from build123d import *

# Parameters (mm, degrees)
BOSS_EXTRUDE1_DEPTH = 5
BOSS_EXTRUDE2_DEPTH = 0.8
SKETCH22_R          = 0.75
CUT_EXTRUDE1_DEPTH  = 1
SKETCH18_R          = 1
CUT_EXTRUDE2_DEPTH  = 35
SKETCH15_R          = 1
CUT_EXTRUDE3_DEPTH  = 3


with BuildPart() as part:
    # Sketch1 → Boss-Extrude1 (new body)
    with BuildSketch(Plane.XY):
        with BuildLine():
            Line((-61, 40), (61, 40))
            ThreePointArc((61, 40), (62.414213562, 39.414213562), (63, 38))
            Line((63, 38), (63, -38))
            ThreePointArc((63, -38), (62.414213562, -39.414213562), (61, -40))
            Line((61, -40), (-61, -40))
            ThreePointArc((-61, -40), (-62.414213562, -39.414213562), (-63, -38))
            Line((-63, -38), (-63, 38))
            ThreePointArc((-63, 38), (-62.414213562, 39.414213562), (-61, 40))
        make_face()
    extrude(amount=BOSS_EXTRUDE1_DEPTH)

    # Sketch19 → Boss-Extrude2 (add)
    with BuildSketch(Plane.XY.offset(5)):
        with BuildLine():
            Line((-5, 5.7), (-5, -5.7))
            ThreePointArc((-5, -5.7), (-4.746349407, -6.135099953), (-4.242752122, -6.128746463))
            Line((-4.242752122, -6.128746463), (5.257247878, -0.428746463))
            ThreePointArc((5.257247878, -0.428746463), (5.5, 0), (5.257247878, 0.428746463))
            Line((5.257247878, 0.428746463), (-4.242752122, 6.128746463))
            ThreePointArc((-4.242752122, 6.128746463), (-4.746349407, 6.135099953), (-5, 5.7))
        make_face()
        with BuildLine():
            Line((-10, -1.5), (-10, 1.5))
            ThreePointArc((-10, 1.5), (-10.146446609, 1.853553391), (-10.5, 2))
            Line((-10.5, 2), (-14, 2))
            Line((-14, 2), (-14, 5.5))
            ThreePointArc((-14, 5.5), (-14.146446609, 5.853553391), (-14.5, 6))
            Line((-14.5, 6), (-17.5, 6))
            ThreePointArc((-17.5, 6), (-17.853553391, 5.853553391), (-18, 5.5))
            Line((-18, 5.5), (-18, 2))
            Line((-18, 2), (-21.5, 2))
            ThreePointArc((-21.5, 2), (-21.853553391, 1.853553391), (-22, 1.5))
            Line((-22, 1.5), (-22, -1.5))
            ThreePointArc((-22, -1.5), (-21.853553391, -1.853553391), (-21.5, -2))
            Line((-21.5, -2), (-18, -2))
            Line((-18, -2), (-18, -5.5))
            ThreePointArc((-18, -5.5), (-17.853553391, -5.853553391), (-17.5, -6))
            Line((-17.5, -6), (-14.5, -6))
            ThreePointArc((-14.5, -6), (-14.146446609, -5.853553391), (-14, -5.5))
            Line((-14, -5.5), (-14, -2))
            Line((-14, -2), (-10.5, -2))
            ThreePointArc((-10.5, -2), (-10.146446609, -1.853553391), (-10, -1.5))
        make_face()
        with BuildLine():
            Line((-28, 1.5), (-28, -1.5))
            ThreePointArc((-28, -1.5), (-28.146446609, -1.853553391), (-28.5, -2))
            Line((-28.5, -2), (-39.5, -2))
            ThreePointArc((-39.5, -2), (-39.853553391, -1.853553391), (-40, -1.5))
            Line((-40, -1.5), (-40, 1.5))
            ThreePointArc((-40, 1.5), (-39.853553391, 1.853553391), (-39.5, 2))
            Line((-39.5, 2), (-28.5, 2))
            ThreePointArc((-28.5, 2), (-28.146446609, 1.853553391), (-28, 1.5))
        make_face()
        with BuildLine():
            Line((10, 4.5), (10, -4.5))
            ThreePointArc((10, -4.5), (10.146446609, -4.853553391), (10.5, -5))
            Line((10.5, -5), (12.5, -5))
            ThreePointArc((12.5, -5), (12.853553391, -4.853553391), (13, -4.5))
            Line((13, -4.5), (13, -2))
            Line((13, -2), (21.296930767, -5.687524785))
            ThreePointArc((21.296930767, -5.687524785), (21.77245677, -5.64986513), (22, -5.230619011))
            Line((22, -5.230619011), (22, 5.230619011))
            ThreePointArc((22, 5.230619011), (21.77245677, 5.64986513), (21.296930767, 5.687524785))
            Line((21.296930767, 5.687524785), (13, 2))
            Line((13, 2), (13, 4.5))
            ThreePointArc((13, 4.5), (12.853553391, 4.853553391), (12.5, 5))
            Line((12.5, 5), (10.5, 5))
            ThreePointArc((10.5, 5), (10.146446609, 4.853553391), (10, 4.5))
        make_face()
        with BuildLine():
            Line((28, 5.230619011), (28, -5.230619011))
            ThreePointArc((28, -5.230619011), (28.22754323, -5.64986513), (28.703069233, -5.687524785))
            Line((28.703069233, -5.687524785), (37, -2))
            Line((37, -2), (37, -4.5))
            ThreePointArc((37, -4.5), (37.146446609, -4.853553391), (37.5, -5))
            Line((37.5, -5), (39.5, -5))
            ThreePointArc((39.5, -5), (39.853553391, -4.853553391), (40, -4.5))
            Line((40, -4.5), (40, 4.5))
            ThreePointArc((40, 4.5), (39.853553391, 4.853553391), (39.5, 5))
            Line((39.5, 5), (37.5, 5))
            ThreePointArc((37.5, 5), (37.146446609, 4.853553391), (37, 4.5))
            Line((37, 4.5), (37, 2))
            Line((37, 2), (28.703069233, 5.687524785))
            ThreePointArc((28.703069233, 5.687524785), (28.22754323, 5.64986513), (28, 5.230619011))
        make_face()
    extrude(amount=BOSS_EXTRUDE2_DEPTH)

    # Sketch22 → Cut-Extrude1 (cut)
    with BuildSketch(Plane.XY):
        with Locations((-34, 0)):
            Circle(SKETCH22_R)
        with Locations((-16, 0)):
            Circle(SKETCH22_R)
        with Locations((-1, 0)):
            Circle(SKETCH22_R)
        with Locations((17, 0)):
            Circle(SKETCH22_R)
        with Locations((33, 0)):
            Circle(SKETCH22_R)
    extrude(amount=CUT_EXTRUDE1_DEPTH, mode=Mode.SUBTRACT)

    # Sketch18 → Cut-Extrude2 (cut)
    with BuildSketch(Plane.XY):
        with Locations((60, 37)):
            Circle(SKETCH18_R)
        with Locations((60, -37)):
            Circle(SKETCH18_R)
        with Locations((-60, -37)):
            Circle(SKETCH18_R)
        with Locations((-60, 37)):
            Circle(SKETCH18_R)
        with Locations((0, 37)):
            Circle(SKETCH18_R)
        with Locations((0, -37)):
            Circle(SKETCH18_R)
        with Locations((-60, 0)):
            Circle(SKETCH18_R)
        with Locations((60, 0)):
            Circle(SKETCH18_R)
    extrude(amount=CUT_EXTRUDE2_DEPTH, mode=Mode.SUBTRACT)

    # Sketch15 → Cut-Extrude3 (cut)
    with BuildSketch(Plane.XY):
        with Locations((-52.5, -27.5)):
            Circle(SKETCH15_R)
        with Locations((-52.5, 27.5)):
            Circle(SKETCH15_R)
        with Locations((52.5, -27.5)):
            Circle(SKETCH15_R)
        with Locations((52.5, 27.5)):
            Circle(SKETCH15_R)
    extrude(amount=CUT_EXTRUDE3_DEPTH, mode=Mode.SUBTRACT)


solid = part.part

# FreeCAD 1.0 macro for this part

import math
import FreeCAD as App
import Part
import Sketcher

doc = App.newDocument("Part")
params = doc.addObject("Spreadsheet::Sheet", "Params")
for row, (alias, value) in enumerate([
    ("sketch1_radius", "2 mm"),
    ("sketch1_width", "122 mm"),
    ("sketch1_height", "76 mm"),
    ("pad1_length", "5 mm"),
    ("sketch2_radius", "0.5 mm"),
    ("sketch2_width", "3 mm"),
    ("sketch2_width2", "11 mm"),
    ("sketch2_width3", "2 mm"),
    ("sketch2_height", "9 mm"),
    ("pad2_length", "0.8 mm"),
    ("sketch3_diameter", "1.5 mm"),
    ("pocket1_length", "1 mm"),
    ("sketch4_diameter", "2 mm"),
    ("pocket2_length", "35 mm"),
    ("sketch5_diameter", "2 mm"),
    ("pocket3_length", "3 mm"),
], start=1):
    params.set(f"A{row}", alias)
    params.set(f"B{row}", "=" + value)
    params.setAlias(f"B{row}", alias)

body = doc.addObject("PartDesign::Body", "Body")

# Sketch on XY plane
sketch1 = doc.addObject("Sketcher::SketchObject", "Sketch")
body.addObject(sketch1)
sketch1.AttachmentSupport = (doc.XY_Plane, [""])
sketch1.MapMode = "FlatFace"
sketch1.addGeometry(Part.LineSegment(App.Vector(61, 40, 0), App.Vector(-61, 40, 0)), False)
sketch1.addGeometry(Part.ArcOfCircle(Part.Circle(App.Vector(-61, 38, 0), App.Vector(0, 0, 1), 2), math.radians(90), math.radians(180)), False)
sketch1.addGeometry(Part.LineSegment(App.Vector(-63, 38, 0), App.Vector(-63, -38, 0)), False)
sketch1.addGeometry(Part.ArcOfCircle(Part.Circle(App.Vector(-61, -38, 0), App.Vector(0, 0, 1), 2), math.radians(-180), math.radians(-90)), False)
sketch1.addGeometry(Part.LineSegment(App.Vector(-61, -40, 0), App.Vector(61, -40, 0)), False)
sketch1.addGeometry(Part.ArcOfCircle(Part.Circle(App.Vector(61, -38, 0), App.Vector(0, 0, 1), 2), math.radians(-90), math.radians(0)), False)
sketch1.addGeometry(Part.LineSegment(App.Vector(63, -38, 0), App.Vector(63, 38, 0)), False)
sketch1.addGeometry(Part.ArcOfCircle(Part.Circle(App.Vector(61, 38, 0), App.Vector(0, 0, 1), 2), math.radians(0), math.radians(90)), False)
sketch1.addConstraint(Sketcher.Constraint("Tangent", 0, 2, 1, 1))
sketch1.addConstraint(Sketcher.Constraint("Tangent", 1, 2, 2, 1))
sketch1.addConstraint(Sketcher.Constraint("Tangent", 2, 2, 3, 1))
sketch1.addConstraint(Sketcher.Constraint("Tangent", 3, 2, 4, 1))
sketch1.addConstraint(Sketcher.Constraint("Tangent", 4, 2, 5, 1))
sketch1.addConstraint(Sketcher.Constraint("Tangent", 5, 2, 6, 1))
sketch1.addConstraint(Sketcher.Constraint("Tangent", 6, 2, 7, 1))
sketch1.addConstraint(Sketcher.Constraint("Tangent", 7, 2, 0, 1))
sketch1.addConstraint(Sketcher.Constraint("Horizontal", 0))
sketch1.addConstraint(Sketcher.Constraint("Vertical", 2))
sketch1.addConstraint(Sketcher.Constraint("Horizontal", 4))
sketch1.addConstraint(Sketcher.Constraint("Vertical", 6))
sketch1.addConstraint(Sketcher.Constraint("Equal", 1, 3))
sketch1.addConstraint(Sketcher.Constraint("Equal", 3, 5))
sketch1.addConstraint(Sketcher.Constraint("Equal", 5, 7))
sketch1.addConstraint(Sketcher.Constraint("Symmetric", 1, 3, 5, 3, -1, 1))
sketch1.addConstraint(Sketcher.Constraint("Radius", 1, 2.0))
sketch1.addConstraint(Sketcher.Constraint("DistanceX", 0, 2, 0, 1, 122.0))
sketch1.addConstraint(Sketcher.Constraint("DistanceY", 2, 2, 2, 1, 76.0))
sketch1.setExpression("Constraints[16]", "Params.sketch1_radius")
sketch1.setExpression("Constraints[17]", "Params.sketch1_width")
sketch1.setExpression("Constraints[18]", "Params.sketch1_height")
pad1 = doc.addObject("PartDesign::Pad", "Pad")
body.addObject(pad1)
pad1.Profile = sketch1
pad1.setExpression("Length", "Params.pad1_length")

# Sketch on XY plane
sketch2 = doc.addObject("Sketcher::SketchObject", "Sketch001")
body.addObject(sketch2)
sketch2.AttachmentSupport = (doc.XY_Plane, [""])
sketch2.MapMode = "FlatFace"
sketch2.AttachmentOffset = App.Placement(App.Vector(0, 0, 5), App.Rotation())
sketch2.addGeometry(Part.LineSegment(App.Vector(-5, 5.7, 0), App.Vector(-5, -5.7, 0)), False)
sketch2.addGeometry(Part.ArcOfCircle(Part.Circle(App.Vector(-4.5, -5.7, 0), App.Vector(0, 0, 1), 0.5), math.radians(-180), math.radians(-59)), False)
sketch2.addGeometry(Part.LineSegment(App.Vector(-4.24, -6.13, 0), App.Vector(5.26, -0.43, 0)), False)
sketch2.addGeometry(Part.ArcOfCircle(Part.Circle(App.Vector(5, 0, 0), App.Vector(0, 0, 1), 0.5), math.radians(-59), math.radians(59)), False)
sketch2.addGeometry(Part.LineSegment(App.Vector(5.26, 0.43, 0), App.Vector(-4.24, 6.13, 0)), False)
sketch2.addGeometry(Part.ArcOfCircle(Part.Circle(App.Vector(-4.5, 5.7, 0), App.Vector(0, 0, 1), 0.5), math.radians(59), math.radians(180)), False)
sketch2.addGeometry(Part.LineSegment(App.Vector(-10, -1.5, 0), App.Vector(-10, 1.5, 0)), False)
sketch2.addGeometry(Part.ArcOfCircle(Part.Circle(App.Vector(-10.5, 1.5, 0), App.Vector(0, 0, 1), 0.5), math.radians(0), math.radians(90)), False)
sketch2.addGeometry(Part.LineSegment(App.Vector(-10.5, 2, 0), App.Vector(-14, 2, 0)), False)
sketch2.addGeometry(Part.LineSegment(App.Vector(-14, 2, 0), App.Vector(-14, 5.5, 0)), False)
sketch2.addGeometry(Part.ArcOfCircle(Part.Circle(App.Vector(-14.5, 5.5, 0), App.Vector(0, 0, 1), 0.5), math.radians(0), math.radians(90)), False)
sketch2.addGeometry(Part.LineSegment(App.Vector(-14.5, 6, 0), App.Vector(-17.5, 6, 0)), False)
sketch2.addGeometry(Part.ArcOfCircle(Part.Circle(App.Vector(-17.5, 5.5, 0), App.Vector(0, 0, 1), 0.5), math.radians(90), math.radians(180)), False)
sketch2.addGeometry(Part.LineSegment(App.Vector(-18, 5.5, 0), App.Vector(-18, 2, 0)), False)
sketch2.addGeometry(Part.LineSegment(App.Vector(-18, 2, 0), App.Vector(-21.5, 2, 0)), False)
sketch2.addGeometry(Part.ArcOfCircle(Part.Circle(App.Vector(-21.5, 1.5, 0), App.Vector(0, 0, 1), 0.5), math.radians(90), math.radians(180)), False)
sketch2.addGeometry(Part.LineSegment(App.Vector(-22, 1.5, 0), App.Vector(-22, -1.5, 0)), False)
sketch2.addGeometry(Part.ArcOfCircle(Part.Circle(App.Vector(-21.5, -1.5, 0), App.Vector(0, 0, 1), 0.5), math.radians(180), math.radians(270)), False)
sketch2.addGeometry(Part.LineSegment(App.Vector(-21.5, -2, 0), App.Vector(-18, -2, 0)), False)
sketch2.addGeometry(Part.LineSegment(App.Vector(-18, -2, 0), App.Vector(-18, -5.5, 0)), False)
sketch2.addGeometry(Part.ArcOfCircle(Part.Circle(App.Vector(-17.5, -5.5, 0), App.Vector(0, 0, 1), 0.5), math.radians(180), math.radians(270)), False)
sketch2.addGeometry(Part.LineSegment(App.Vector(-17.5, -6, 0), App.Vector(-14.5, -6, 0)), False)
sketch2.addGeometry(Part.ArcOfCircle(Part.Circle(App.Vector(-14.5, -5.5, 0), App.Vector(0, 0, 1), 0.5), math.radians(-90), math.radians(0)), False)
sketch2.addGeometry(Part.LineSegment(App.Vector(-14, -5.5, 0), App.Vector(-14, -2, 0)), False)
sketch2.addGeometry(Part.LineSegment(App.Vector(-14, -2, 0), App.Vector(-10.5, -2, 0)), False)
sketch2.addGeometry(Part.ArcOfCircle(Part.Circle(App.Vector(-10.5, -1.5, 0), App.Vector(0, 0, 1), 0.5), math.radians(-90), math.radians(0)), False)
sketch2.addGeometry(Part.LineSegment(App.Vector(-28, -1.5, 0), App.Vector(-28, 1.5, 0)), False)
sketch2.addGeometry(Part.ArcOfCircle(Part.Circle(App.Vector(-28.5, 1.5, 0), App.Vector(0, 0, 1), 0.5), math.radians(0), math.radians(90)), False)
sketch2.addGeometry(Part.LineSegment(App.Vector(-28.5, 2, 0), App.Vector(-39.5, 2, 0)), False)
sketch2.addGeometry(Part.ArcOfCircle(Part.Circle(App.Vector(-39.5, 1.5, 0), App.Vector(0, 0, 1), 0.5), math.radians(90), math.radians(180)), False)
sketch2.addGeometry(Part.LineSegment(App.Vector(-40, 1.5, 0), App.Vector(-40, -1.5, 0)), False)
sketch2.addGeometry(Part.ArcOfCircle(Part.Circle(App.Vector(-39.5, -1.5, 0), App.Vector(0, 0, 1), 0.5), math.radians(180), math.radians(270)), False)
sketch2.addGeometry(Part.LineSegment(App.Vector(-39.5, -2, 0), App.Vector(-28.5, -2, 0)), False)
sketch2.addGeometry(Part.ArcOfCircle(Part.Circle(App.Vector(-28.5, -1.5, 0), App.Vector(0, 0, 1), 0.5), math.radians(-90), math.radians(0)), False)
sketch2.addGeometry(Part.LineSegment(App.Vector(10, 4.5, 0), App.Vector(10, -4.5, 0)), False)
sketch2.addGeometry(Part.ArcOfCircle(Part.Circle(App.Vector(10.5, -4.5, 0), App.Vector(0, 0, 1), 0.5), math.radians(180), math.radians(270)), False)
sketch2.addGeometry(Part.LineSegment(App.Vector(10.5, -5, 0), App.Vector(12.5, -5, 0)), False)
sketch2.addGeometry(Part.ArcOfCircle(Part.Circle(App.Vector(12.5, -4.5, 0), App.Vector(0, 0, 1), 0.5), math.radians(-90), math.radians(0)), False)
sketch2.addGeometry(Part.LineSegment(App.Vector(13, -4.5, 0), App.Vector(13, -2, 0)), False)
sketch2.addGeometry(Part.LineSegment(App.Vector(13, -2, 0), App.Vector(21.3, -5.69, 0)), False)
sketch2.addGeometry(Part.ArcOfCircle(Part.Circle(App.Vector(21.5, -5.23, 0), App.Vector(0, 0, 1), 0.5), math.radians(-114), math.radians(0)), False)
sketch2.addGeometry(Part.LineSegment(App.Vector(22, -5.23, 0), App.Vector(22, 5.23, 0)), False)
sketch2.addGeometry(Part.ArcOfCircle(Part.Circle(App.Vector(21.5, 5.23, 0), App.Vector(0, 0, 1), 0.5), math.radians(0), math.radians(114)), False)
sketch2.addGeometry(Part.LineSegment(App.Vector(21.3, 5.69, 0), App.Vector(13, 2, 0)), False)
sketch2.addGeometry(Part.LineSegment(App.Vector(13, 2, 0), App.Vector(13, 4.5, 0)), False)
sketch2.addGeometry(Part.ArcOfCircle(Part.Circle(App.Vector(12.5, 4.5, 0), App.Vector(0, 0, 1), 0.5), math.radians(0), math.radians(90)), False)
sketch2.addGeometry(Part.LineSegment(App.Vector(12.5, 5, 0), App.Vector(10.5, 5, 0)), False)
sketch2.addGeometry(Part.ArcOfCircle(Part.Circle(App.Vector(10.5, 4.5, 0), App.Vector(0, 0, 1), 0.5), math.radians(90), math.radians(180)), False)
sketch2.addGeometry(Part.LineSegment(App.Vector(28, 5.23, 0), App.Vector(28, -5.23, 0)), False)
sketch2.addGeometry(Part.ArcOfCircle(Part.Circle(App.Vector(28.5, -5.23, 0), App.Vector(0, 0, 1), 0.5), math.radians(180), math.radians(294)), False)
sketch2.addGeometry(Part.LineSegment(App.Vector(28.7, -5.69, 0), App.Vector(37, -2, 0)), False)
sketch2.addGeometry(Part.LineSegment(App.Vector(37, -2, 0), App.Vector(37, -4.5, 0)), False)
sketch2.addGeometry(Part.ArcOfCircle(Part.Circle(App.Vector(37.5, -4.5, 0), App.Vector(0, 0, 1), 0.5), math.radians(180), math.radians(270)), False)
sketch2.addGeometry(Part.LineSegment(App.Vector(37.5, -5, 0), App.Vector(39.5, -5, 0)), False)
sketch2.addGeometry(Part.ArcOfCircle(Part.Circle(App.Vector(39.5, -4.5, 0), App.Vector(0, 0, 1), 0.5), math.radians(-90), math.radians(0)), False)
sketch2.addGeometry(Part.LineSegment(App.Vector(40, -4.5, 0), App.Vector(40, 4.5, 0)), False)
sketch2.addGeometry(Part.ArcOfCircle(Part.Circle(App.Vector(39.5, 4.5, 0), App.Vector(0, 0, 1), 0.5), math.radians(0), math.radians(90)), False)
sketch2.addGeometry(Part.LineSegment(App.Vector(39.5, 5, 0), App.Vector(37.5, 5, 0)), False)
sketch2.addGeometry(Part.ArcOfCircle(Part.Circle(App.Vector(37.5, 4.5, 0), App.Vector(0, 0, 1), 0.5), math.radians(90), math.radians(180)), False)
sketch2.addGeometry(Part.LineSegment(App.Vector(37, 4.5, 0), App.Vector(37, 2, 0)), False)
sketch2.addGeometry(Part.LineSegment(App.Vector(37, 2, 0), App.Vector(28.7, 5.69, 0)), False)
sketch2.addGeometry(Part.ArcOfCircle(Part.Circle(App.Vector(28.5, 5.23, 0), App.Vector(0, 0, 1), 0.5), math.radians(66), math.radians(180)), False)
sketch2.addConstraint(Sketcher.Constraint("Tangent", 0, 2, 1, 1))
sketch2.addConstraint(Sketcher.Constraint("Tangent", 1, 2, 2, 1))
sketch2.addConstraint(Sketcher.Constraint("Tangent", 2, 2, 3, 1))
sketch2.addConstraint(Sketcher.Constraint("Tangent", 3, 2, 4, 1))
sketch2.addConstraint(Sketcher.Constraint("Tangent", 4, 2, 5, 1))
sketch2.addConstraint(Sketcher.Constraint("Tangent", 5, 2, 0, 1))
sketch2.addConstraint(Sketcher.Constraint("Tangent", 6, 2, 7, 1))
sketch2.addConstraint(Sketcher.Constraint("Tangent", 7, 2, 8, 1))
sketch2.addConstraint(Sketcher.Constraint("Coincident", 8, 2, 9, 1))
sketch2.addConstraint(Sketcher.Constraint("Tangent", 9, 2, 10, 1))
sketch2.addConstraint(Sketcher.Constraint("Tangent", 10, 2, 11, 1))
sketch2.addConstraint(Sketcher.Constraint("Tangent", 11, 2, 12, 1))
sketch2.addConstraint(Sketcher.Constraint("Tangent", 12, 2, 13, 1))
sketch2.addConstraint(Sketcher.Constraint("Coincident", 13, 2, 14, 1))
sketch2.addConstraint(Sketcher.Constraint("Tangent", 14, 2, 15, 1))
sketch2.addConstraint(Sketcher.Constraint("Tangent", 15, 2, 16, 1))
sketch2.addConstraint(Sketcher.Constraint("Tangent", 16, 2, 17, 1))
sketch2.addConstraint(Sketcher.Constraint("Tangent", 17, 2, 18, 1))
sketch2.addConstraint(Sketcher.Constraint("Coincident", 18, 2, 19, 1))
sketch2.addConstraint(Sketcher.Constraint("Tangent", 19, 2, 20, 1))
sketch2.addConstraint(Sketcher.Constraint("Tangent", 20, 2, 21, 1))
sketch2.addConstraint(Sketcher.Constraint("Tangent", 21, 2, 22, 1))
sketch2.addConstraint(Sketcher.Constraint("Tangent", 22, 2, 23, 1))
sketch2.addConstraint(Sketcher.Constraint("Coincident", 23, 2, 24, 1))
sketch2.addConstraint(Sketcher.Constraint("Tangent", 24, 2, 25, 1))
sketch2.addConstraint(Sketcher.Constraint("Tangent", 25, 2, 6, 1))
sketch2.addConstraint(Sketcher.Constraint("Tangent", 26, 2, 27, 1))
sketch2.addConstraint(Sketcher.Constraint("Tangent", 27, 2, 28, 1))
sketch2.addConstraint(Sketcher.Constraint("Tangent", 28, 2, 29, 1))
sketch2.addConstraint(Sketcher.Constraint("Tangent", 29, 2, 30, 1))
sketch2.addConstraint(Sketcher.Constraint("Tangent", 30, 2, 31, 1))
sketch2.addConstraint(Sketcher.Constraint("Tangent", 31, 2, 32, 1))
sketch2.addConstraint(Sketcher.Constraint("Tangent", 32, 2, 33, 1))
sketch2.addConstraint(Sketcher.Constraint("Tangent", 33, 2, 26, 1))
sketch2.addConstraint(Sketcher.Constraint("Tangent", 34, 2, 35, 1))
sketch2.addConstraint(Sketcher.Constraint("Tangent", 35, 2, 36, 1))
sketch2.addConstraint(Sketcher.Constraint("Tangent", 36, 2, 37, 1))
sketch2.addConstraint(Sketcher.Constraint("Tangent", 37, 2, 38, 1))
sketch2.addConstraint(Sketcher.Constraint("Coincident", 38, 2, 39, 1))
sketch2.addConstraint(Sketcher.Constraint("Tangent", 39, 2, 40, 1))
sketch2.addConstraint(Sketcher.Constraint("Tangent", 40, 2, 41, 1))
sketch2.addConstraint(Sketcher.Constraint("Tangent", 41, 2, 42, 1))
sketch2.addConstraint(Sketcher.Constraint("Tangent", 42, 2, 43, 1))
sketch2.addConstraint(Sketcher.Constraint("Coincident", 43, 2, 44, 1))
sketch2.addConstraint(Sketcher.Constraint("Tangent", 44, 2, 45, 1))
sketch2.addConstraint(Sketcher.Constraint("Tangent", 45, 2, 46, 1))
sketch2.addConstraint(Sketcher.Constraint("Tangent", 46, 2, 47, 1))
sketch2.addConstraint(Sketcher.Constraint("Tangent", 47, 2, 34, 1))
sketch2.addConstraint(Sketcher.Constraint("Tangent", 48, 2, 49, 1))
sketch2.addConstraint(Sketcher.Constraint("Tangent", 49, 2, 50, 1))
sketch2.addConstraint(Sketcher.Constraint("Coincident", 50, 2, 51, 1))
sketch2.addConstraint(Sketcher.Constraint("Tangent", 51, 2, 52, 1))
sketch2.addConstraint(Sketcher.Constraint("Tangent", 52, 2, 53, 1))
sketch2.addConstraint(Sketcher.Constraint("Tangent", 53, 2, 54, 1))
sketch2.addConstraint(Sketcher.Constraint("Tangent", 54, 2, 55, 1))
sketch2.addConstraint(Sketcher.Constraint("Tangent", 55, 2, 56, 1))
sketch2.addConstraint(Sketcher.Constraint("Tangent", 56, 2, 57, 1))
sketch2.addConstraint(Sketcher.Constraint("Tangent", 57, 2, 58, 1))
sketch2.addConstraint(Sketcher.Constraint("Tangent", 58, 2, 59, 1))
sketch2.addConstraint(Sketcher.Constraint("Coincident", 59, 2, 60, 1))
sketch2.addConstraint(Sketcher.Constraint("Tangent", 60, 2, 61, 1))
sketch2.addConstraint(Sketcher.Constraint("Tangent", 61, 2, 48, 1))
sketch2.addConstraint(Sketcher.Constraint("Vertical", 0))
sketch2.addConstraint(Sketcher.Constraint("Vertical", 6))
sketch2.addConstraint(Sketcher.Constraint("Horizontal", 8))
sketch2.addConstraint(Sketcher.Constraint("Vertical", 9))
sketch2.addConstraint(Sketcher.Constraint("Horizontal", 11))
sketch2.addConstraint(Sketcher.Constraint("Vertical", 13))
sketch2.addConstraint(Sketcher.Constraint("Horizontal", 14))
sketch2.addConstraint(Sketcher.Constraint("Vertical", 16))
sketch2.addConstraint(Sketcher.Constraint("Horizontal", 18))
sketch2.addConstraint(Sketcher.Constraint("Vertical", 19))
sketch2.addConstraint(Sketcher.Constraint("Horizontal", 21))
sketch2.addConstraint(Sketcher.Constraint("Vertical", 23))
sketch2.addConstraint(Sketcher.Constraint("Horizontal", 24))
sketch2.addConstraint(Sketcher.Constraint("Vertical", 26))
sketch2.addConstraint(Sketcher.Constraint("Horizontal", 28))
sketch2.addConstraint(Sketcher.Constraint("Vertical", 30))
sketch2.addConstraint(Sketcher.Constraint("Horizontal", 32))
sketch2.addConstraint(Sketcher.Constraint("Vertical", 34))
sketch2.addConstraint(Sketcher.Constraint("Horizontal", 36))
sketch2.addConstraint(Sketcher.Constraint("Vertical", 38))
sketch2.addConstraint(Sketcher.Constraint("Vertical", 41))
sketch2.addConstraint(Sketcher.Constraint("Vertical", 44))
sketch2.addConstraint(Sketcher.Constraint("Horizontal", 46))
sketch2.addConstraint(Sketcher.Constraint("Vertical", 48))
sketch2.addConstraint(Sketcher.Constraint("Vertical", 51))
sketch2.addConstraint(Sketcher.Constraint("Horizontal", 53))
sketch2.addConstraint(Sketcher.Constraint("Vertical", 55))
sketch2.addConstraint(Sketcher.Constraint("Horizontal", 57))
sketch2.addConstraint(Sketcher.Constraint("Vertical", 59))
sketch2.addConstraint(Sketcher.Constraint("Equal", 1, 3))
sketch2.addConstraint(Sketcher.Constraint("Equal", 3, 5))
sketch2.addConstraint(Sketcher.Constraint("Equal", 5, 7))
sketch2.addConstraint(Sketcher.Constraint("Equal", 7, 10))
sketch2.addConstraint(Sketcher.Constraint("Equal", 10, 12))
sketch2.addConstraint(Sketcher.Constraint("Equal", 12, 15))
sketch2.addConstraint(Sketcher.Constraint("Equal", 15, 17))
sketch2.addConstraint(Sketcher.Constraint("Equal", 17, 20))
sketch2.addConstraint(Sketcher.Constraint("Equal", 20, 22))
sketch2.addConstraint(Sketcher.Constraint("Equal", 22, 25))
sketch2.addConstraint(Sketcher.Constraint("Equal", 25, 27))
sketch2.addConstraint(Sketcher.Constraint("Equal", 27, 29))
sketch2.addConstraint(Sketcher.Constraint("Equal", 29, 31))
sketch2.addConstraint(Sketcher.Constraint("Equal", 31, 33))
sketch2.addConstraint(Sketcher.Constraint("Equal", 33, 35))
sketch2.addConstraint(Sketcher.Constraint("Equal", 35, 37))
sketch2.addConstraint(Sketcher.Constraint("Equal", 37, 40))
sketch2.addConstraint(Sketcher.Constraint("Equal", 40, 42))
sketch2.addConstraint(Sketcher.Constraint("Equal", 42, 45))
sketch2.addConstraint(Sketcher.Constraint("Equal", 45, 47))
sketch2.addConstraint(Sketcher.Constraint("Equal", 47, 49))
sketch2.addConstraint(Sketcher.Constraint("Equal", 49, 52))
sketch2.addConstraint(Sketcher.Constraint("Equal", 52, 54))
sketch2.addConstraint(Sketcher.Constraint("Equal", 54, 56))
sketch2.addConstraint(Sketcher.Constraint("Equal", 56, 58))
sketch2.addConstraint(Sketcher.Constraint("Equal", 58, 61))
sketch2.addConstraint(Sketcher.Constraint("Symmetric", 12, 3, 20, 3, -1))
sketch2.addConstraint(Sketcher.Constraint("Symmetric", 37, 3, 45, 3, -1))
sketch2.addConstraint(Sketcher.Constraint("Symmetric", 52, 3, 58, 3, -1))
sketch2.addConstraint(Sketcher.Constraint("Symmetric", 2, 2, 3, 2, -1))
sketch2.addConstraint(Sketcher.Constraint("Symmetric", 8, 2, 23, 2, -1))
sketch2.addConstraint(Sketcher.Constraint("Symmetric", 39, 2, 42, 2, -1))
sketch2.addConstraint(Sketcher.Constraint("Symmetric", 49, 2, 60, 2, -1))
sketch2.addConstraint(Sketcher.Constraint("Parallel", 43, 50))
sketch2.addConstraint(Sketcher.Constraint("Horizontal", 7, 3, 15, 3))
sketch2.addConstraint(Sketcher.Constraint("Horizontal", 17, 3, 25, 3))
sketch2.addConstraint(Sketcher.Constraint("Horizontal", 15, 3, 27, 3))
sketch2.addConstraint(Sketcher.Constraint("Horizontal", 25, 3, 31, 3))
sketch2.addConstraint(Sketcher.Constraint("Horizontal", 40, 3, 49, 3))
sketch2.addConstraint(Sketcher.Constraint("Horizontal", 37, 3, 52, 3))
sketch2.addConstraint(Sketcher.Constraint("Horizontal", 32, 2, 38, 2))
sketch2.addConstraint(Sketcher.Constraint("Horizontal", 38, 2, 50, 2))
sketch2.addConstraint(Sketcher.Constraint("Equal", 8, 14))
sketch2.addConstraint(Sketcher.Constraint("Equal", 46, 53))
sketch2.addConstraint(Sketcher.Constraint("Equal", 21, 6))
sketch2.addConstraint(Sketcher.Constraint("Equal", 24, 9))
sketch2.addConstraint(Sketcher.Constraint("Radius", 1, 0.5))
sketch2.addConstraint(Sketcher.Constraint("DistanceX", 11, 2, 11, 1, 3.0))
sketch2.addConstraint(Sketcher.Constraint("DistanceX", 28, 2, 28, 1, 11.0))
sketch2.addConstraint(Sketcher.Constraint("DistanceX", 36, 1, 36, 2, 2.0))
sketch2.addConstraint(Sketcher.Constraint("DistanceY", 34, 2, 34, 1, 9.0))
sketch2.addConstraint(Sketcher.Constraint("DistanceX", 8, 2, 8, 1, 3.5))
sketch2.addConstraint(Sketcher.Constraint("DistanceY", 0, 2, 0, 1, 11.4))
sketch2.addConstraint(Sketcher.Constraint("DistanceX", -1, 1, 3, 3, 5.0))
sketch2.addConstraint(Sketcher.Constraint("DistanceX", 0, 2, -1, 1, 5.0))
sketch2.addConstraint(Sketcher.Constraint("DistanceX", 6, 2, -1, 1, 10.0))
sketch2.addConstraint(Sketcher.Constraint("DistanceX", 26, 2, -1, 1, 28.0))
sketch2.addConstraint(Sketcher.Constraint("DistanceX", -1, 1, 34, 2, 10.0))
sketch2.addConstraint(Sketcher.Constraint("DistanceX", -1, 1, 40, 2, 22.0))
sketch2.addConstraint(Sketcher.Constraint("DistanceX", -1, 1, 48, 2, 28.0))
sketch2.addConstraint(Sketcher.Constraint("DistanceY", 41, 1, 41, 2, 10.461238))
sketch2.setExpression("Constraints[137]", "Params.sketch2_radius")
sketch2.setExpression("Constraints[138]", "Params.sketch2_width")
sketch2.setExpression("Constraints[139]", "Params.sketch2_width2")
sketch2.setExpression("Constraints[140]", "Params.sketch2_width3")
sketch2.setExpression("Constraints[141]", "Params.sketch2_height")
pad2 = doc.addObject("PartDesign::Pad", "Pad001")
body.addObject(pad2)
pad2.Profile = sketch2
pad2.setExpression("Length", "Params.pad2_length")

# Sketch on XY plane
sketch3 = doc.addObject("Sketcher::SketchObject", "Sketch002")
body.addObject(sketch3)
sketch3.AttachmentSupport = (doc.XY_Plane, [""])
sketch3.MapMode = "FlatFace"
sketch3.addGeometry(Part.Circle(App.Vector(-34, 0, 0), App.Vector(0, 0, 1), 0.8), False)
sketch3.addGeometry(Part.Circle(App.Vector(-16, 0, 0), App.Vector(0, 0, 1), 0.8), False)
sketch3.addGeometry(Part.Circle(App.Vector(-1, 0, 0), App.Vector(0, 0, 1), 0.8), False)
sketch3.addGeometry(Part.Circle(App.Vector(17, 0, 0), App.Vector(0, 0, 1), 0.8), False)
sketch3.addGeometry(Part.Circle(App.Vector(33, 0, 0), App.Vector(0, 0, 1), 0.8), False)
sketch3.addConstraint(Sketcher.Constraint("Equal", 0, 1))
sketch3.addConstraint(Sketcher.Constraint("Equal", 1, 2))
sketch3.addConstraint(Sketcher.Constraint("Equal", 2, 3))
sketch3.addConstraint(Sketcher.Constraint("Equal", 3, 4))
sketch3.addConstraint(Sketcher.Constraint("PointOnObject", 0, 3, -1))
sketch3.addConstraint(Sketcher.Constraint("PointOnObject", 1, 3, -1))
sketch3.addConstraint(Sketcher.Constraint("PointOnObject", 2, 3, -1))
sketch3.addConstraint(Sketcher.Constraint("PointOnObject", 3, 3, -1))
sketch3.addConstraint(Sketcher.Constraint("PointOnObject", 4, 3, -1))
sketch3.addConstraint(Sketcher.Constraint("Diameter", 0, 1.5))
sketch3.addConstraint(Sketcher.Constraint("DistanceX", 0, 3, -1, 1, 34.0))
sketch3.addConstraint(Sketcher.Constraint("DistanceX", 1, 3, -1, 1, 16.0))
sketch3.addConstraint(Sketcher.Constraint("DistanceX", 2, 3, -1, 1, 1.0))
sketch3.addConstraint(Sketcher.Constraint("DistanceX", -1, 1, 3, 3, 17.0))
sketch3.addConstraint(Sketcher.Constraint("DistanceX", -1, 1, 4, 3, 33.0))
sketch3.setExpression("Constraints[9]", "Params.sketch3_diameter")
pocket1 = doc.addObject("PartDesign::Pocket", "Pocket")
body.addObject(pocket1)
pocket1.Profile = sketch3
pocket1.setExpression("Length", "Params.pocket1_length")
pocket1.Reversed = True

# Sketch on XY plane
sketch4 = doc.addObject("Sketcher::SketchObject", "Sketch003")
body.addObject(sketch4)
sketch4.AttachmentSupport = (doc.XY_Plane, [""])
sketch4.MapMode = "FlatFace"
sketch4.addGeometry(Part.Circle(App.Vector(60, 37, 0), App.Vector(0, 0, 1), 1), False)
sketch4.addGeometry(Part.Circle(App.Vector(60, -37, 0), App.Vector(0, 0, 1), 1), False)
sketch4.addGeometry(Part.Circle(App.Vector(-60, -37, 0), App.Vector(0, 0, 1), 1), False)
sketch4.addGeometry(Part.Circle(App.Vector(-60, 37, 0), App.Vector(0, 0, 1), 1), False)
sketch4.addGeometry(Part.Circle(App.Vector(0, 37, 0), App.Vector(0, 0, 1), 1), False)
sketch4.addGeometry(Part.Circle(App.Vector(0, -37, 0), App.Vector(0, 0, 1), 1), False)
sketch4.addGeometry(Part.Circle(App.Vector(-60, 0, 0), App.Vector(0, 0, 1), 1), False)
sketch4.addGeometry(Part.Circle(App.Vector(60, 0, 0), App.Vector(0, 0, 1), 1), False)
sketch4.addConstraint(Sketcher.Constraint("Equal", 0, 1))
sketch4.addConstraint(Sketcher.Constraint("Equal", 1, 2))
sketch4.addConstraint(Sketcher.Constraint("Equal", 2, 3))
sketch4.addConstraint(Sketcher.Constraint("Equal", 3, 4))
sketch4.addConstraint(Sketcher.Constraint("Equal", 4, 5))
sketch4.addConstraint(Sketcher.Constraint("Equal", 5, 6))
sketch4.addConstraint(Sketcher.Constraint("Equal", 6, 7))
sketch4.addConstraint(Sketcher.Constraint("Symmetric", 0, 3, 2, 3, -1, 1))
sketch4.addConstraint(Sketcher.Constraint("Symmetric", 1, 3, 3, 3, -1, 1))
sketch4.addConstraint(Sketcher.Constraint("Symmetric", 4, 3, 5, 3, -1, 1))
sketch4.addConstraint(Sketcher.Constraint("Symmetric", 6, 3, 7, 3, -1, 1))
sketch4.addConstraint(Sketcher.Constraint("Symmetric", 1, 3, 2, 3, -2))
sketch4.addConstraint(Sketcher.Constraint("PointOnObject", 4, 3, -2))
sketch4.addConstraint(Sketcher.Constraint("PointOnObject", 6, 3, -1))
sketch4.addConstraint(Sketcher.Constraint("Horizontal", 3, 3, 4, 3))
sketch4.addConstraint(Sketcher.Constraint("Vertical", 3, 3, 6, 3))
sketch4.addConstraint(Sketcher.Constraint("Diameter", 0, 2.0))
sketch4.addConstraint(Sketcher.Constraint("DistanceX", -1, 1, 0, 3, 60.0))
sketch4.addConstraint(Sketcher.Constraint("DistanceY", -1, 1, 0, 3, 37.0))
sketch4.setExpression("Constraints[16]", "Params.sketch4_diameter")
pocket2 = doc.addObject("PartDesign::Pocket", "Pocket001")
body.addObject(pocket2)
pocket2.Profile = sketch4
pocket2.setExpression("Length", "Params.pocket2_length")
pocket2.Reversed = True

# Sketch on XY plane
sketch5 = doc.addObject("Sketcher::SketchObject", "Sketch004")
body.addObject(sketch5)
sketch5.AttachmentSupport = (doc.XY_Plane, [""])
sketch5.MapMode = "FlatFace"
sketch5.addGeometry(Part.Circle(App.Vector(-52.5, -27.5, 0), App.Vector(0, 0, 1), 1), False)
sketch5.addGeometry(Part.Circle(App.Vector(-52.5, 27.5, 0), App.Vector(0, 0, 1), 1), False)
sketch5.addGeometry(Part.Circle(App.Vector(52.5, -27.5, 0), App.Vector(0, 0, 1), 1), False)
sketch5.addGeometry(Part.Circle(App.Vector(52.5, 27.5, 0), App.Vector(0, 0, 1), 1), False)
sketch5.addConstraint(Sketcher.Constraint("Equal", 0, 1))
sketch5.addConstraint(Sketcher.Constraint("Equal", 1, 2))
sketch5.addConstraint(Sketcher.Constraint("Equal", 2, 3))
sketch5.addConstraint(Sketcher.Constraint("Symmetric", 1, 3, 2, 3, -1, 1))
sketch5.addConstraint(Sketcher.Constraint("Symmetric", 0, 3, 3, 3, -1, 1))
sketch5.addConstraint(Sketcher.Constraint("Symmetric", 0, 3, 2, 3, -2))
sketch5.addConstraint(Sketcher.Constraint("Diameter", 0, 2.0))
sketch5.addConstraint(Sketcher.Constraint("DistanceY", 0, 3, 1, 3, 55.0))
sketch5.addConstraint(Sketcher.Constraint("DistanceX", 0, 3, 2, 3, 105.0))
sketch5.setExpression("Constraints[6]", "Params.sketch5_diameter")
pocket3 = doc.addObject("PartDesign::Pocket", "Pocket002")
body.addObject(pocket3)
pocket3.Profile = sketch5
pocket3.setExpression("Length", "Params.pocket3_length")
pocket3.Reversed = True

doc.recompute()
